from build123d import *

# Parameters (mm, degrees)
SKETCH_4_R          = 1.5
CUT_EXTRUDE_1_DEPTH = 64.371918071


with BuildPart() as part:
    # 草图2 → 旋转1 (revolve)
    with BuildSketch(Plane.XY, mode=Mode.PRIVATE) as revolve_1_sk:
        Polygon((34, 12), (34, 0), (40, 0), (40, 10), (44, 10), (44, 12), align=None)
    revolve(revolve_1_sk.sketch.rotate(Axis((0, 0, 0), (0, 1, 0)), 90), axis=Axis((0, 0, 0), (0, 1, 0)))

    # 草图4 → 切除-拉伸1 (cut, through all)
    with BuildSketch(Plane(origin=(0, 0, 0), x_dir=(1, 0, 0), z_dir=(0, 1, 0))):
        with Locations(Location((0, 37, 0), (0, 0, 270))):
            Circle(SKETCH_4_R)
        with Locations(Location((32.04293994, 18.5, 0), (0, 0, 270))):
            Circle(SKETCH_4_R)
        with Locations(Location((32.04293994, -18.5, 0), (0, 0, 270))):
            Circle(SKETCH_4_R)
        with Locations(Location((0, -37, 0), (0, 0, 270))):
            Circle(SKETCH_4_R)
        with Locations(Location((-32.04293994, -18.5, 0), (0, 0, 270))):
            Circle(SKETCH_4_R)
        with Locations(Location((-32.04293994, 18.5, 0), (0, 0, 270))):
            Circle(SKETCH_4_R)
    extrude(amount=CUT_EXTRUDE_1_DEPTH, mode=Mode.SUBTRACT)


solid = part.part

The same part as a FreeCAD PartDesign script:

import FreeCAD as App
import Part
import Sketcher

V = App.Vector
Q = App.Units.Quantity

doc = App.newDocument("Part")
body = doc.addObject("PartDesign::Body", "Body")

# Sketch on XY plane
sketch1 = doc.addObject("Sketcher::SketchObject", "Sketch")
body.addObject(sketch1)
sketch1.AttachmentSupport = (doc.XY_Plane, [""])
sketch1.MapMode = "FlatFace"
sketch1.addGeometry([
    Part.LineSegment(V(34, 12, 0), V(34, 0, 0)),  # 0
    Part.LineSegment(V(34, 0, 0), V(40, 0, 0)),  # 1
    Part.LineSegment(V(40, 0, 0), V(40, 10, 0)),  # 2
    Part.LineSegment(V(40, 10, 0), V(44, 10, 0)),  # 3
    Part.LineSegment(V(44, 10, 0), V(44, 12, 0)),  # 4
    Part.LineSegment(V(44, 12, 0), V(34, 12, 0)),  # 5
], False)
sketch1.addConstraint([
    Sketcher.Constraint("Coincident", 0, 2, 1, 1),
    Sketcher.Constraint("Coincident", 1, 2, 2, 1),
    Sketcher.Constraint("Coincident", 2, 2, 3, 1),
    Sketcher.Constraint("Coincident", 3, 2, 4, 1),
    Sketcher.Constraint("Coincident", 4, 2, 5, 1),
    Sketcher.Constraint("Coincident", 5, 2, 0, 1),
    Sketcher.Constraint("Vertical", 0),
    Sketcher.Constraint("Horizontal", 1),
    Sketcher.Constraint("Vertical", 2),
    Sketcher.Constraint("Horizontal", 3),
    Sketcher.Constraint("Vertical", 4),
    Sketcher.Constraint("Horizontal", 5),
    Sketcher.Constraint("PointOnObject", 0, 2, -1),
    Sketcher.Constraint("Equal", 5, 2),
    Sketcher.Constraint("DistanceX", 1, 1, 1, 2, Q("6 mm")),
    Sketcher.Constraint("DistanceX", 3, 1, 3, 2, Q("4 mm")),
    Sketcher.Constraint("DistanceY", 0, 2, 0, 1, Q("12 mm")),
    Sketcher.Constraint("DistanceX", -1, 1, 0, 2, Q("34 mm")),
])
revolution = doc.addObject("PartDesign::Revolution", "Revolution")
body.addObject(revolution)
revolution.Profile = sketch1
revolution.ReferenceAxis = (sketch1, ["V_Axis"])
revolution.Angle = 360

# Sketch on XZ plane
sketch2 = doc.addObject("Sketcher::SketchObject", "Sketch001")
body.addObject(sketch2)
sketch2.AttachmentSupport = (doc.XZ_Plane, [""])
sketch2.MapMode = "FlatFace"
sketch2.addGeometry([
    Part.Circle(V(0, -37, 0), V(0, 0, 1), 1.5),  # 0
    Part.Circle(V(32, -18.5, 0), V(0, 0, 1), 1.5),  # 1
    Part.Circle(V(32, 18.5, 0), V(0, 0, 1), 1.5),  # 2
    Part.Circle(V(0, 37, 0), V(0, 0, 1), 1.5),  # 3
    Part.Circle(V(-32, 18.5, 0), V(0, 0, 1), 1.5),  # 4
    Part.Circle(V(-32, -18.5, 0), V(0, 0, 1), 1.5),  # 5
], False)
sketch2.addConstraint([
    Sketcher.Constraint("Equal", 0, 1),
    Sketcher.Constraint("Equal", 1, 2),
    Sketcher.Constraint("Equal", 2, 3),
    Sketcher.Constraint("Equal", 3, 4),
    Sketcher.Constraint("Equal", 4, 5),
    Sketcher.Constraint("Symmetric", 0, 3, 3, 3, -1, 1),
    Sketcher.Constraint("Symmetric", 1, 3, 4, 3, -1, 1),
    Sketcher.Constraint("Symmetric", 2, 3, 5, 3, -1, 1),
    Sketcher.Constraint("Symmetric", 2, 3, 4, 3, -2),
    Sketcher.Constraint("PointOnObject", 0, 3, -2),
    Sketcher.Constraint("Diameter", 0, Q("3 mm")),
    Sketcher.Constraint("DistanceY", 0, 3, -1, 1, Q("37 mm")),
    Sketcher.Constraint("DistanceY", 1, 3, 2, 3, Q("37 mm")),
    Sketcher.Constraint("DistanceX", -1, 1, 1, 3, Q("32.04294 mm")),
])
pocket1 = doc.addObject("PartDesign::Pocket", "Pocket")
body.addObject(pocket1)
pocket1.Profile = sketch2
pocket1.Type = "ThroughAll"

doc.recompute()
